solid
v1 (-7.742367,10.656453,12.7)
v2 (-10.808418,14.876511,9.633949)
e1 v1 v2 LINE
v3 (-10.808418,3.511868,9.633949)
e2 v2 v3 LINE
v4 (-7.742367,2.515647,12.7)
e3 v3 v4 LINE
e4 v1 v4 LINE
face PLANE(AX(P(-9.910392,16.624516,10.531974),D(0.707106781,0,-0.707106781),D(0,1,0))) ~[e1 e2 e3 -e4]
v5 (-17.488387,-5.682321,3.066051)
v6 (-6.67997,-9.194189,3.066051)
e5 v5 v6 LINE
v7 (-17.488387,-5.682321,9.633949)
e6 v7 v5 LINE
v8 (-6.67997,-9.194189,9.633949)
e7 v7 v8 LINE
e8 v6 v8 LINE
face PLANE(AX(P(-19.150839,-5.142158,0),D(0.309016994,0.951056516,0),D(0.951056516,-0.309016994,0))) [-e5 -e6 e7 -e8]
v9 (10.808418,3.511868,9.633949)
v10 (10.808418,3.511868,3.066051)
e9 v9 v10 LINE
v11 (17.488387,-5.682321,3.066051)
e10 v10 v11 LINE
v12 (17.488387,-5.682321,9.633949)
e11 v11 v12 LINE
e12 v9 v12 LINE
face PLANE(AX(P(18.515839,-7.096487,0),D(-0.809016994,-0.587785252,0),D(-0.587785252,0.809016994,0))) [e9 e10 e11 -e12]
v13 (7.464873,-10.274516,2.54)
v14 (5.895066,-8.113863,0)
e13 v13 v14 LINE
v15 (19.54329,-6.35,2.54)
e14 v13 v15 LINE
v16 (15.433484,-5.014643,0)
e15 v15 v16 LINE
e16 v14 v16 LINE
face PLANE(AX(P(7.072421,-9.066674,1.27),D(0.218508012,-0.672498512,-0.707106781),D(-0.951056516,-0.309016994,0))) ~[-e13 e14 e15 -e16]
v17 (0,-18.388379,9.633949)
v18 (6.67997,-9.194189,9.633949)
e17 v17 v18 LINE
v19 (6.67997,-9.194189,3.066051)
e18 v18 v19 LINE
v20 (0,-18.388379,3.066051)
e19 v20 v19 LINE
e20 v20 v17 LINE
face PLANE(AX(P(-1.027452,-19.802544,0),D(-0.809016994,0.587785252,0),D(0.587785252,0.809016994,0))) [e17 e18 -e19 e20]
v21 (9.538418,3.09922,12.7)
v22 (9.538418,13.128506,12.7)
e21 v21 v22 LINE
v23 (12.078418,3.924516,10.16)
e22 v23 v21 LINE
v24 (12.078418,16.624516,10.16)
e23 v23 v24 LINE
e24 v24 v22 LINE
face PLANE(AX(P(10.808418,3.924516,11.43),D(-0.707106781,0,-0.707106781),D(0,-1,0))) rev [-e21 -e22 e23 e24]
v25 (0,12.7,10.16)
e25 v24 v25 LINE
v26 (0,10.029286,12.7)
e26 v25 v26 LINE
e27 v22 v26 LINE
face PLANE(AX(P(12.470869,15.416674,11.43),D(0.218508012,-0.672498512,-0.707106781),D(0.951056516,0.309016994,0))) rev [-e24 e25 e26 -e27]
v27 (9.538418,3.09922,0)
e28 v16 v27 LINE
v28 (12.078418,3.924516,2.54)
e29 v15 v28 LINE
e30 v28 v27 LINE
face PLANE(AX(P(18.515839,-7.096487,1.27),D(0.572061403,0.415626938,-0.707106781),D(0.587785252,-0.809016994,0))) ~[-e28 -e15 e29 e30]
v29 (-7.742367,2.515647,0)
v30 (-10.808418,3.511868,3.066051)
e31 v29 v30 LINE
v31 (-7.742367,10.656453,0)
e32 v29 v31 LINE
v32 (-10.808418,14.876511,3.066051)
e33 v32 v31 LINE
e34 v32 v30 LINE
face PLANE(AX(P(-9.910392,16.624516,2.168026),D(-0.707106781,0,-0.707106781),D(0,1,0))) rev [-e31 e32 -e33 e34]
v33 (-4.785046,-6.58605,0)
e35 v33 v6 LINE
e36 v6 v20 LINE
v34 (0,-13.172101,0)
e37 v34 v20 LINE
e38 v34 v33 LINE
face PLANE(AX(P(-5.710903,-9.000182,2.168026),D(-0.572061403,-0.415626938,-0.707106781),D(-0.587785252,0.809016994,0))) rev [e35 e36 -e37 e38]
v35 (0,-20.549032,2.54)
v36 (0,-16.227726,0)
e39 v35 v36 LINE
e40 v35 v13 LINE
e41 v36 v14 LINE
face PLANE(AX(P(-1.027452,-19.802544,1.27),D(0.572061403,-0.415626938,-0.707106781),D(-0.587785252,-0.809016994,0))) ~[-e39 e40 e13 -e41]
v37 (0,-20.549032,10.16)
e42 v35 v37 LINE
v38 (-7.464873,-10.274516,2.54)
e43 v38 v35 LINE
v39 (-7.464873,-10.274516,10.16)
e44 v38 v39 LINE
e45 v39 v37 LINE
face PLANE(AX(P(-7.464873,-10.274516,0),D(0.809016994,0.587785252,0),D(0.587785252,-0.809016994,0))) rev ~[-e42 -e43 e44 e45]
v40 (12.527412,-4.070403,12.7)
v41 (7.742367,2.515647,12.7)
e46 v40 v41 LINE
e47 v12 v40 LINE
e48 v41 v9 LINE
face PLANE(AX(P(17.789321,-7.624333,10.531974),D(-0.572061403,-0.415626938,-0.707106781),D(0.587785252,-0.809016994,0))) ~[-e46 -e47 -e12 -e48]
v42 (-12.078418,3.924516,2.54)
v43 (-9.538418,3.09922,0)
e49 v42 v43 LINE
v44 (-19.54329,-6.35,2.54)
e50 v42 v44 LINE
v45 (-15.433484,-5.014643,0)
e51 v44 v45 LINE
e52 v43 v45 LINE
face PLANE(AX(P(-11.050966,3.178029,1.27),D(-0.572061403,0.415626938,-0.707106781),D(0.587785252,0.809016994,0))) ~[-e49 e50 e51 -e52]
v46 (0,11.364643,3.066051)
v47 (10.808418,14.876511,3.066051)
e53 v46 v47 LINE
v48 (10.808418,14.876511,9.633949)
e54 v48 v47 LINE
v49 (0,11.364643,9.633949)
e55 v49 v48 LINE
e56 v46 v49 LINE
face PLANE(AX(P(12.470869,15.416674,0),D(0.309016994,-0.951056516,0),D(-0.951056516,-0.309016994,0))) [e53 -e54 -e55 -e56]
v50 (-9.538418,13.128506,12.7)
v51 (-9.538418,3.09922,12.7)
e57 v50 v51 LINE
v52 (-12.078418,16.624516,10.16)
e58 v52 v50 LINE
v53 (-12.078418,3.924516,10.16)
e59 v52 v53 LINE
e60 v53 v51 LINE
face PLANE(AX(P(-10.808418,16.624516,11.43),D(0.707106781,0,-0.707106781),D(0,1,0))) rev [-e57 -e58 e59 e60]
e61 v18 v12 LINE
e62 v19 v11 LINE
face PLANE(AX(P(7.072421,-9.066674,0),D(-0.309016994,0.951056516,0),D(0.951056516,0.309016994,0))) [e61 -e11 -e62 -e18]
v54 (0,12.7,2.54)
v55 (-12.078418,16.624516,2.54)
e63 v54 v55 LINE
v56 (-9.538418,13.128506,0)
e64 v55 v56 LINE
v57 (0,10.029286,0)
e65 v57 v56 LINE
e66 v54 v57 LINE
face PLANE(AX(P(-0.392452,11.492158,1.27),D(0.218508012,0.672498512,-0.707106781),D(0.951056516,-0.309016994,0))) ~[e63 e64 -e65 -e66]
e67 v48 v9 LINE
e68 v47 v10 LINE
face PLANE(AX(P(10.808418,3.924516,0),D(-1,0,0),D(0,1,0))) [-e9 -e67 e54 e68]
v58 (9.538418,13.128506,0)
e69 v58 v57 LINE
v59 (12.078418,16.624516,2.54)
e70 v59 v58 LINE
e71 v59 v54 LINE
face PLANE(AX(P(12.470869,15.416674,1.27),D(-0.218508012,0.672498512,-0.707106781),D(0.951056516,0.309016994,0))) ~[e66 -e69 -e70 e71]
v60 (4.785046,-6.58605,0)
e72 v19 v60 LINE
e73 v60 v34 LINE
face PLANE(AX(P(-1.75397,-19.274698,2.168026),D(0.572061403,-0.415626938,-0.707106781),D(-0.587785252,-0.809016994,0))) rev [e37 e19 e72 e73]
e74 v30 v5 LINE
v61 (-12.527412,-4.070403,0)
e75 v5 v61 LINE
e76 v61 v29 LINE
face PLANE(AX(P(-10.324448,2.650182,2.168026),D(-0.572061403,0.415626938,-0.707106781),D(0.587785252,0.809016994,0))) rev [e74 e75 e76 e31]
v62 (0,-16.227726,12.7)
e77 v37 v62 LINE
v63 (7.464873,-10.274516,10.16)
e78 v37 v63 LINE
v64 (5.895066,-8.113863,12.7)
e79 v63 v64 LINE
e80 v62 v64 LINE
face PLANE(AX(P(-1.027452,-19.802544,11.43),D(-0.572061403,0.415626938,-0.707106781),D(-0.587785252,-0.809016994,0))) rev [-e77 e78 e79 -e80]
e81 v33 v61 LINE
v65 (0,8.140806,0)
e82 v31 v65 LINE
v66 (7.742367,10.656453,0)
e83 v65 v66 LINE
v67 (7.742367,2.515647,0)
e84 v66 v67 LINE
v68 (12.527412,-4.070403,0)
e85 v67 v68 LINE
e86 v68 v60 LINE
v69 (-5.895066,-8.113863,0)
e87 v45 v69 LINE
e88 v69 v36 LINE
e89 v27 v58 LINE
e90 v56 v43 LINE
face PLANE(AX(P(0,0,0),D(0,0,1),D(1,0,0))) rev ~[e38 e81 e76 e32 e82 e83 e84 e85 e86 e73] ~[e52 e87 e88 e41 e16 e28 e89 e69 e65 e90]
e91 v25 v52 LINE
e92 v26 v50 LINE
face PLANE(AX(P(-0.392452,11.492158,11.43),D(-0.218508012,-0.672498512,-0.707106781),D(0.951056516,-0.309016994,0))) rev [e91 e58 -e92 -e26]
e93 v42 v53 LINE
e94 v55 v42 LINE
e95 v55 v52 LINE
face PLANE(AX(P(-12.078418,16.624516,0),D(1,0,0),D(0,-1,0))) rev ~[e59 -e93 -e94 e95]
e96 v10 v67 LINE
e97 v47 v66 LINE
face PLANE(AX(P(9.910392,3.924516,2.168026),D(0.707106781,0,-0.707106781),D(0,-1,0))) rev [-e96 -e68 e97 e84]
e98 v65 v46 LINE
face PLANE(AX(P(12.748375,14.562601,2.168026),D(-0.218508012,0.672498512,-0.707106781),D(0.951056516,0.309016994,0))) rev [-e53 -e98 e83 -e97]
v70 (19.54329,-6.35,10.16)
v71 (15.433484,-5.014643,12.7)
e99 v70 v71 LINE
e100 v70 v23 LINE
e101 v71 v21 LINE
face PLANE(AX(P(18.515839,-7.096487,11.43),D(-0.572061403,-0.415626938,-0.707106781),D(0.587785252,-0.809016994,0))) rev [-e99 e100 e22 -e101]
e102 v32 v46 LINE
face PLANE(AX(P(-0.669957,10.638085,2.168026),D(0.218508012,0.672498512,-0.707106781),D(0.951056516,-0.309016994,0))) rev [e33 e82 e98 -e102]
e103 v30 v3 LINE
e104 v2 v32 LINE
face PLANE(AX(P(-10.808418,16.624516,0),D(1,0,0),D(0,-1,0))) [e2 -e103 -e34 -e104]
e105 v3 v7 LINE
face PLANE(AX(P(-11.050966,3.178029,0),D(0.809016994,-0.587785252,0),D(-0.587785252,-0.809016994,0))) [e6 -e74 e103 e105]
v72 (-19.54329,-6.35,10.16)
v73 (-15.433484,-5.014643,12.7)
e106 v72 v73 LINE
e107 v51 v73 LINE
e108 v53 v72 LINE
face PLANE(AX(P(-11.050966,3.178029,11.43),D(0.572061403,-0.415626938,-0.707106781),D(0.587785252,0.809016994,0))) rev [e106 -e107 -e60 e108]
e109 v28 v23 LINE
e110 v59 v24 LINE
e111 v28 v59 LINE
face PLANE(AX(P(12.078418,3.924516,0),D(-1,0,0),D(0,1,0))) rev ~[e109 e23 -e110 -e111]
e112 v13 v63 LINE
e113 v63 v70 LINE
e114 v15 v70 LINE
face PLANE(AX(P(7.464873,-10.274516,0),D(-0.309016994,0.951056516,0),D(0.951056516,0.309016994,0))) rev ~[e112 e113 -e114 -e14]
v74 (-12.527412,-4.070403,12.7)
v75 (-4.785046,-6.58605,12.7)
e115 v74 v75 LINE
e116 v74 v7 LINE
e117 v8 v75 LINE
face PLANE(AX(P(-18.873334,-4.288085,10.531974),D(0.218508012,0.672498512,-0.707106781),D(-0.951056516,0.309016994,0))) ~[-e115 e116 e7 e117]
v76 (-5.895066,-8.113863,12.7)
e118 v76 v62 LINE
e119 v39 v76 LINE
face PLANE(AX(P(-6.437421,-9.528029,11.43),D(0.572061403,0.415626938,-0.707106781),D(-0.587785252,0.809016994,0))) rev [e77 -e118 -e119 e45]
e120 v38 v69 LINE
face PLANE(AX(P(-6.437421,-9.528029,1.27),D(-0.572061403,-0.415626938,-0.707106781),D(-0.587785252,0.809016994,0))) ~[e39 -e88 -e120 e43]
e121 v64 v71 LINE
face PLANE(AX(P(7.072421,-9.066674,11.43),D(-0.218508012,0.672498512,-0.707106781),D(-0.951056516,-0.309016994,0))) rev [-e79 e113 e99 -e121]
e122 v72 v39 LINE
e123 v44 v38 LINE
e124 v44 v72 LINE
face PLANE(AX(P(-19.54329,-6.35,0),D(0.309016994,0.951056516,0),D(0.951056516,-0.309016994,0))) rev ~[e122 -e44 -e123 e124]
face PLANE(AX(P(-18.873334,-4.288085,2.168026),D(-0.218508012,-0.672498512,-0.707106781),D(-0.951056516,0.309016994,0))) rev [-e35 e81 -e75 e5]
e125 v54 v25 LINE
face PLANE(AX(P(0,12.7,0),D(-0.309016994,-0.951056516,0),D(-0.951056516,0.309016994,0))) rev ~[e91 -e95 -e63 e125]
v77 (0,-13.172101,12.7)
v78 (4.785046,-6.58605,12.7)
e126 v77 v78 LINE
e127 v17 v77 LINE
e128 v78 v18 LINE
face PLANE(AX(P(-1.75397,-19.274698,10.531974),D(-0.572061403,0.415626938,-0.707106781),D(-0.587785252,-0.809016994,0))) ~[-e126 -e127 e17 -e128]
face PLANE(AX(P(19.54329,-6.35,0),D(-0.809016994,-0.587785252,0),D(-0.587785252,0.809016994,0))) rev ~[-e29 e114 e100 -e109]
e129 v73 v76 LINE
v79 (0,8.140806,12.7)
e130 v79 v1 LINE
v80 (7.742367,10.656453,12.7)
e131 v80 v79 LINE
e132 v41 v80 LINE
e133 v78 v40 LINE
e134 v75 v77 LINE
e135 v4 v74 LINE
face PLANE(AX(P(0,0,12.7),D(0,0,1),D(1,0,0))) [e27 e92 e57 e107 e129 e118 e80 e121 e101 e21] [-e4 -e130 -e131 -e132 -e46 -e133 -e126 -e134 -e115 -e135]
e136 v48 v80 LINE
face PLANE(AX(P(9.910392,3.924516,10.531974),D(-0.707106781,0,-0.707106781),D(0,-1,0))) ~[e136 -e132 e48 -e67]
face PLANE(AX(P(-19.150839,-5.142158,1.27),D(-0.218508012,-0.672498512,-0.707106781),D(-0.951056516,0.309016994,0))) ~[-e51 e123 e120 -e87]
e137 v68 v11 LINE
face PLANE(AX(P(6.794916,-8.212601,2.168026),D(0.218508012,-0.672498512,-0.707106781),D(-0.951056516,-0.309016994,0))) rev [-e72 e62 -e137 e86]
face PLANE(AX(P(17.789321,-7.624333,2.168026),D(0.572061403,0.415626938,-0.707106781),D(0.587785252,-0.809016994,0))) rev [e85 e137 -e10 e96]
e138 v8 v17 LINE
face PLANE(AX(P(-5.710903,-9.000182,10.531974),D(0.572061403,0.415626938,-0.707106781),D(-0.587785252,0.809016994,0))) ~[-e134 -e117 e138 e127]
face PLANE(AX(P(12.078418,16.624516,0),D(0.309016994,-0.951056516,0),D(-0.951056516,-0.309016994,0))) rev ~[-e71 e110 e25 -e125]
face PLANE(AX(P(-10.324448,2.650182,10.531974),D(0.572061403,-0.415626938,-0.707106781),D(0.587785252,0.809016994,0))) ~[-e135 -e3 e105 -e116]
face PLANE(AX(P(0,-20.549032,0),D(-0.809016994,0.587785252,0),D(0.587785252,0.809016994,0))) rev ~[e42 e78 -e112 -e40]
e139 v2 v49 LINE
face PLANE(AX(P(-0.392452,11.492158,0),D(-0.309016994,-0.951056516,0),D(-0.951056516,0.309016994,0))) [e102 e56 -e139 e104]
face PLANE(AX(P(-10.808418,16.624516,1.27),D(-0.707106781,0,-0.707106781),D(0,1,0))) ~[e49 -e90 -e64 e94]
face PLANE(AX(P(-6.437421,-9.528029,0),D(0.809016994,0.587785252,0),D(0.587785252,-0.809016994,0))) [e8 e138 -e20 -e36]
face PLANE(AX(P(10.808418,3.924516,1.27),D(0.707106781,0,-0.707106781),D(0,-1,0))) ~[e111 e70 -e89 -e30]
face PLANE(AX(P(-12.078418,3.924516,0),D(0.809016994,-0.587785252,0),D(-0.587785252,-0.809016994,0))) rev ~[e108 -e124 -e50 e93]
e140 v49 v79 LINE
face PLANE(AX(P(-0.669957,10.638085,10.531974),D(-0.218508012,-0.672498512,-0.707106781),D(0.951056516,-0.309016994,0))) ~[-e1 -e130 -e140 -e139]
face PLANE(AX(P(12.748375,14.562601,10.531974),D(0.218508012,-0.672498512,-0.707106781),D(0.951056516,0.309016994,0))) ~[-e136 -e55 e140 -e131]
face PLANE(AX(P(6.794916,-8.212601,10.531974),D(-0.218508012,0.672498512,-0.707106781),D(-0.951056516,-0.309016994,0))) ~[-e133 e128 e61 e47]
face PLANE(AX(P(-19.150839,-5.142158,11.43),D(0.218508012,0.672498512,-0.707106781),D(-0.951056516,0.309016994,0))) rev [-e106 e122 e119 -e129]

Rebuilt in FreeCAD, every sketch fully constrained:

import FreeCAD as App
import Part
import Sketcher
Q = App.Units.Quantity


def edges_at(feature, points):
    """Names of the edges that pass closest to the given points."""
    edges = feature.Shape.Edges
    near = lambda p: min(range(len(edges)), key=lambda i: edges[i].distToShape(Part.Vertex(*p))[0])
    return sorted({f"Edge{near(p) + 1}" for p in points})


def faces_at(feature, points):
    """Names of the faces that lie closest to the given points."""
    faces = feature.Shape.Faces
    near = lambda p: min(range(len(faces)), key=lambda i: faces[i].distToShape(Part.Vertex(*p))[0])
    return sorted({f"Face{near(p) + 1}" for p in points})


def add_polygon(sketch, points):
    """Adds a closed chain of lines whose ends are joined by coincident constraints."""
    first, n = sketch.GeometryCount, len(points)
    for a, b in zip(points, points[1:] + points[:1]):
        sketch.addGeometry(Part.LineSegment(App.Vector(*a, 0), App.Vector(*b, 0)), False)
    for i in range(n):
        sketch.addConstraint(Sketcher.Constraint("Coincident", first + i, 2, first + (i + 1) % n, 1))

doc = App.newDocument("Part")
body = doc.addObject("PartDesign::Body", "Body")

sketch1 = body.newObject("Sketcher::SketchObject", "Sketch")
sketch1.AttachmentSupport = (doc.getObject("XY_Plane"), [""])
sketch1.MapMode = "FlatFace"
add_polygon(sketch1, [(-7, -10), (0, -21), (7, -10), (20, -6), (12, 4), (12, 17), (0, 13), (-12, 17), (-12, 4), (-20, -6)])
sketch1.addConstraint([
    Sketcher.Constraint("Vertical", 4),
    Sketcher.Constraint("Vertical", 7),
    Sketcher.Constraint("Symmetric", 4, 2, 6, 2, -2),
    Sketcher.Constraint("Symmetric", 2, 2, 8, 2, -2),
    Sketcher.Constraint("Symmetric", 1, 2, 9, 2, -2),
    Sketcher.Constraint("PointOnObject", 0, 2, -2),
    Sketcher.Constraint("PointOnObject", 5, 2, -2),
    Sketcher.Constraint("Parallel", 0, 3),
    Sketcher.Constraint("Parallel", 2, 5),
    Sketcher.Constraint("Parallel", 1, 8),
    Sketcher.Constraint("Equal", 1, 2),
    Sketcher.Constraint("Equal", 2, 3),
    Sketcher.Constraint("DistanceY", 4, 1, 4, 2, Q("0.5 in")),
    Sketcher.Constraint("Angle", 0, Q("-54 deg")),
    Sketcher.Constraint("Angle", 2, Q("18 deg")),
    Sketcher.Constraint("Distance", 0, Q("0.5 in")),
    Sketcher.Constraint("DistanceY", -1, 1, 5, 2, Q("0.5 in")),
])
pad1 = body.newObject("PartDesign::Pad", "Pad")
pad1.Profile = sketch1
pad1.Length = Q("0.5 in")
doc.recompute()

chamfer = body.newObject("PartDesign::Chamfer", "Chamfer")
chamfer.Base = (pad1, edges_at(pad1, [
    (-3.732, -15.412, 12.7),
    (3.732, -15.412, 12.7),
    (13.504, -8.312, 12.7),
    (15.811, -1.213, 12.7),
    (12.078, 10.275, 12.7),
    (6.039, 14.662, 12.7),
    (-6.039, 14.662, 12.7),
    (-12.078, 10.275, 12.7),
    (-15.811, -1.213, 12.7),
    (-13.504, -8.312, 12.7),
    (-13.504, -8.312, 0),
    (-3.732, -15.412, 0),
    (3.732, -15.412, 0),
    (13.504, -8.312, 0),
    (15.811, -1.213, 0),
    (12.078, 10.275, 0),
    (6.039, 14.662, 0),
    (-6.039, 14.662, 0),
    (-12.078, 10.275, 0),
    (-15.811, -1.213, 0),
]))
chamfer.Size = Q("0.1 in")
doc.recompute()

thickness = body.newObject("PartDesign::Thickness", "Thickness")
thickness.Base = (chamfer, faces_at(chamfer, [(0, -1.55, 0), (0, -1.55, 12.7)]))
thickness.Value = Q("0.05 in")
thickness.Reversed = True
thickness.Join = "Intersection"

doc.recompute()
